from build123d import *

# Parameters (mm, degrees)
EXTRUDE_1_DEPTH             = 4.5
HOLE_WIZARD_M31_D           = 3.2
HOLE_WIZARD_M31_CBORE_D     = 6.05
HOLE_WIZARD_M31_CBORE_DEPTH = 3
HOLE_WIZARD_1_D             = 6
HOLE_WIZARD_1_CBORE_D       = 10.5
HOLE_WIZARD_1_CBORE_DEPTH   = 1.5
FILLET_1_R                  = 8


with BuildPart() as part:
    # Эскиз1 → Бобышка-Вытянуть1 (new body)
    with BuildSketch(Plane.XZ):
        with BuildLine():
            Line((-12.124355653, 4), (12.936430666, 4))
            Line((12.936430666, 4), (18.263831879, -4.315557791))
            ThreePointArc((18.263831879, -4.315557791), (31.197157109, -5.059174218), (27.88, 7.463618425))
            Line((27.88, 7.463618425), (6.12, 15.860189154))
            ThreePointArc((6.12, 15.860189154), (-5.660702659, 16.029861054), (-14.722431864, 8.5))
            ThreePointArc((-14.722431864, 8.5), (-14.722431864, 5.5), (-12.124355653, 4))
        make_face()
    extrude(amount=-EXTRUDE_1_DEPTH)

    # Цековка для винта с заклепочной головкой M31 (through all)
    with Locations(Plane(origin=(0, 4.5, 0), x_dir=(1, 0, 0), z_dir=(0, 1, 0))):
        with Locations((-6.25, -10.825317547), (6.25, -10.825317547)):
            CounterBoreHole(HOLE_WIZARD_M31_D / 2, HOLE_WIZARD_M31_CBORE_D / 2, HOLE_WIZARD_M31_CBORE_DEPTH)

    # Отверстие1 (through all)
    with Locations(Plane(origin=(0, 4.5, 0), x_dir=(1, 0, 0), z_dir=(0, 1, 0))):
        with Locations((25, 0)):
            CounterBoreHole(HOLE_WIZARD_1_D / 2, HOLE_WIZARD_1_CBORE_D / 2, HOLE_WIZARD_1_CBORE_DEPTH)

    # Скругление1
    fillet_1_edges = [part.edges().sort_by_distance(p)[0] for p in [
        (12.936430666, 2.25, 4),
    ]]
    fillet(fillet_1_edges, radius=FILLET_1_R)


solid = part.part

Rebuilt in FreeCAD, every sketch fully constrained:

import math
import FreeCAD as App
import Part
import Sketcher
Q = App.Units.Quantity


def edges_at(feature, points):
    """Names of the edges that pass closest to the given points."""
    edges = feature.Shape.Edges
    near = lambda p: min(range(len(edges)), key=lambda i: edges[i].distToShape(Part.Vertex(*p))[0])
    return sorted({f"Edge{near(p) + 1}" for p in points})

doc = App.newDocument("Part")
body = doc.addObject("PartDesign::Body", "Body")

sketch1 = doc.addObject("Sketcher::SketchObject", "Sketch")
body.addObject(sketch1)
sketch1.AttachmentSupport = (doc.XZ_Plane, [""])
sketch1.MapMode = "FlatFace"
sketch1.addGeometry([
    Part.LineSegment(App.Vector(-12.1, 4, 0), App.Vector(12.9, 4, 0)),
    Part.LineSegment(App.Vector(12.9, 4, 0), App.Vector(18.3, -4.3, 0)),
    Part.ArcOfCircle(Part.Circle(App.Vector(25, 0, 0), App.Vector(0, 0, 1), 8), math.radians(-147), math.radians(69)),
    Part.LineSegment(App.Vector(27.9, 7.5, 0), App.Vector(6.1, 15.9, 0)),
    Part.ArcOfCircle(Part.Circle(App.Vector(0, 0, 0), App.Vector(0, 0, 1), 17), math.radians(69), math.radians(150)),
    Part.ArcOfCircle(Part.Circle(App.Vector(-12.1, 7, 0), App.Vector(0, 0, 1), 3), math.radians(150), math.radians(270)),
], False)
sketch1.addConstraint([
    Sketcher.Constraint("Coincident", 0, 2, 1, 1),
    Sketcher.Constraint("Tangent", 1, 2, 2, 1),
    Sketcher.Constraint("Tangent", 2, 2, 3, 1),
    Sketcher.Constraint("Tangent", 3, 2, 4, 1),
    Sketcher.Constraint("Tangent", 4, 2, 5, 1),
    Sketcher.Constraint("Tangent", 5, 2, 0, 1),
    Sketcher.Constraint("Horizontal", 0),
    Sketcher.Constraint("Coincident", 4, 3, -1, 1),
    Sketcher.Constraint("PointOnObject", 2, 3, -1),
    Sketcher.Constraint("Radius", 2, Q("8 mm")),
    Sketcher.Constraint("Radius", 4, Q("17 mm")),
    Sketcher.Constraint("Radius", 5, Q("3 mm")),
    Sketcher.Constraint("DistanceX", -1, 1, 2, 3, Q("25 mm")),
    Sketcher.Constraint("DistanceY", -1, 1, 5, 3, Q("7 mm")),
    Sketcher.Constraint("DistanceX", 0, 2, 1, 2, Q("5.327401 mm")),
])
pad1 = doc.addObject("PartDesign::Pad", "Pad")
body.addObject(pad1)
pad1.Profile = sketch1
pad1.Length = 4.5
pad1.Reversed = True

sketch2 = doc.addObject("Sketcher::SketchObject", "Sketch001")
body.addObject(sketch2)
sketch2.AttachmentSupport = (doc.XZ_Plane, [""])
sketch2.MapMode = "FlatFace"
sketch2.AttachmentOffset = App.Placement(App.Vector(0, 0, -4.5), App.Rotation())
sketch2.addGeometry([
    Part.Circle(App.Vector(-6.2, 10.8, 0), App.Vector(0, 0, 1), 1.6),
    Part.Circle(App.Vector(6.2, 10.8, 0), App.Vector(0, 0, 1), 1.6),
], False)
sketch2.addConstraint([
    Sketcher.Constraint("Equal", 0, 1),
    Sketcher.Constraint("Symmetric", 0, 3, 1, 3, -2),
    Sketcher.Constraint("Diameter", 0, Q("3.2 mm")),
    Sketcher.Constraint("DistanceX", 0, 3, 1, 3, Q("12.5 mm")),
    Sketcher.Constraint("DistanceY", -1, 1, 0, 3, Q("10.825318 mm")),
])
doc.recompute()
hole = doc.addObject("PartDesign::Hole", "Hole")
body.addObject(hole)
hole.Profile = sketch2
hole.ThreadType = "None"
hole.Diameter = 3.2
hole.DepthType = "ThroughAll"
hole.HoleCutType = "Counterbore"
hole.HoleCutDiameter = 6.05
hole.HoleCutDepth = 3
hole.Reversed = True

sketch3 = doc.addObject("Sketcher::SketchObject", "Sketch002")
body.addObject(sketch3)
sketch3.AttachmentSupport = (doc.XZ_Plane, [""])
sketch3.MapMode = "FlatFace"
sketch3.AttachmentOffset = App.Placement(App.Vector(0, 0, -4.5), App.Rotation())
sketch3.addGeometry(Part.Circle(App.Vector(25, 0, 0), App.Vector(0, 0, 1), 3), False)
sketch3.addConstraint([
    Sketcher.Constraint("PointOnObject", 0, 3, -1),
    Sketcher.Constraint("Diameter", 0, Q("6 mm")),
    Sketcher.Constraint("DistanceX", -1, 1, 0, 3, Q("25 mm")),
])
doc.recompute()
hole2 = doc.addObject("PartDesign::Hole", "Hole001")
body.addObject(hole2)
hole2.Profile = sketch3
hole2.ThreadType = "None"
hole2.Diameter = 6
hole2.DepthType = "ThroughAll"
hole2.HoleCutType = "Counterbore"
hole2.HoleCutDiameter = 10.5
hole2.HoleCutDepth = 1.5
hole2.Reversed = True
doc.recompute()

fillet = doc.addObject("PartDesign::Fillet", "Fillet")
body.addObject(fillet)
fillet.Base = (hole2, edges_at(hole2, [(12.936, 2.25, 4)]))
fillet.Radius = 8

doc.recompute()
